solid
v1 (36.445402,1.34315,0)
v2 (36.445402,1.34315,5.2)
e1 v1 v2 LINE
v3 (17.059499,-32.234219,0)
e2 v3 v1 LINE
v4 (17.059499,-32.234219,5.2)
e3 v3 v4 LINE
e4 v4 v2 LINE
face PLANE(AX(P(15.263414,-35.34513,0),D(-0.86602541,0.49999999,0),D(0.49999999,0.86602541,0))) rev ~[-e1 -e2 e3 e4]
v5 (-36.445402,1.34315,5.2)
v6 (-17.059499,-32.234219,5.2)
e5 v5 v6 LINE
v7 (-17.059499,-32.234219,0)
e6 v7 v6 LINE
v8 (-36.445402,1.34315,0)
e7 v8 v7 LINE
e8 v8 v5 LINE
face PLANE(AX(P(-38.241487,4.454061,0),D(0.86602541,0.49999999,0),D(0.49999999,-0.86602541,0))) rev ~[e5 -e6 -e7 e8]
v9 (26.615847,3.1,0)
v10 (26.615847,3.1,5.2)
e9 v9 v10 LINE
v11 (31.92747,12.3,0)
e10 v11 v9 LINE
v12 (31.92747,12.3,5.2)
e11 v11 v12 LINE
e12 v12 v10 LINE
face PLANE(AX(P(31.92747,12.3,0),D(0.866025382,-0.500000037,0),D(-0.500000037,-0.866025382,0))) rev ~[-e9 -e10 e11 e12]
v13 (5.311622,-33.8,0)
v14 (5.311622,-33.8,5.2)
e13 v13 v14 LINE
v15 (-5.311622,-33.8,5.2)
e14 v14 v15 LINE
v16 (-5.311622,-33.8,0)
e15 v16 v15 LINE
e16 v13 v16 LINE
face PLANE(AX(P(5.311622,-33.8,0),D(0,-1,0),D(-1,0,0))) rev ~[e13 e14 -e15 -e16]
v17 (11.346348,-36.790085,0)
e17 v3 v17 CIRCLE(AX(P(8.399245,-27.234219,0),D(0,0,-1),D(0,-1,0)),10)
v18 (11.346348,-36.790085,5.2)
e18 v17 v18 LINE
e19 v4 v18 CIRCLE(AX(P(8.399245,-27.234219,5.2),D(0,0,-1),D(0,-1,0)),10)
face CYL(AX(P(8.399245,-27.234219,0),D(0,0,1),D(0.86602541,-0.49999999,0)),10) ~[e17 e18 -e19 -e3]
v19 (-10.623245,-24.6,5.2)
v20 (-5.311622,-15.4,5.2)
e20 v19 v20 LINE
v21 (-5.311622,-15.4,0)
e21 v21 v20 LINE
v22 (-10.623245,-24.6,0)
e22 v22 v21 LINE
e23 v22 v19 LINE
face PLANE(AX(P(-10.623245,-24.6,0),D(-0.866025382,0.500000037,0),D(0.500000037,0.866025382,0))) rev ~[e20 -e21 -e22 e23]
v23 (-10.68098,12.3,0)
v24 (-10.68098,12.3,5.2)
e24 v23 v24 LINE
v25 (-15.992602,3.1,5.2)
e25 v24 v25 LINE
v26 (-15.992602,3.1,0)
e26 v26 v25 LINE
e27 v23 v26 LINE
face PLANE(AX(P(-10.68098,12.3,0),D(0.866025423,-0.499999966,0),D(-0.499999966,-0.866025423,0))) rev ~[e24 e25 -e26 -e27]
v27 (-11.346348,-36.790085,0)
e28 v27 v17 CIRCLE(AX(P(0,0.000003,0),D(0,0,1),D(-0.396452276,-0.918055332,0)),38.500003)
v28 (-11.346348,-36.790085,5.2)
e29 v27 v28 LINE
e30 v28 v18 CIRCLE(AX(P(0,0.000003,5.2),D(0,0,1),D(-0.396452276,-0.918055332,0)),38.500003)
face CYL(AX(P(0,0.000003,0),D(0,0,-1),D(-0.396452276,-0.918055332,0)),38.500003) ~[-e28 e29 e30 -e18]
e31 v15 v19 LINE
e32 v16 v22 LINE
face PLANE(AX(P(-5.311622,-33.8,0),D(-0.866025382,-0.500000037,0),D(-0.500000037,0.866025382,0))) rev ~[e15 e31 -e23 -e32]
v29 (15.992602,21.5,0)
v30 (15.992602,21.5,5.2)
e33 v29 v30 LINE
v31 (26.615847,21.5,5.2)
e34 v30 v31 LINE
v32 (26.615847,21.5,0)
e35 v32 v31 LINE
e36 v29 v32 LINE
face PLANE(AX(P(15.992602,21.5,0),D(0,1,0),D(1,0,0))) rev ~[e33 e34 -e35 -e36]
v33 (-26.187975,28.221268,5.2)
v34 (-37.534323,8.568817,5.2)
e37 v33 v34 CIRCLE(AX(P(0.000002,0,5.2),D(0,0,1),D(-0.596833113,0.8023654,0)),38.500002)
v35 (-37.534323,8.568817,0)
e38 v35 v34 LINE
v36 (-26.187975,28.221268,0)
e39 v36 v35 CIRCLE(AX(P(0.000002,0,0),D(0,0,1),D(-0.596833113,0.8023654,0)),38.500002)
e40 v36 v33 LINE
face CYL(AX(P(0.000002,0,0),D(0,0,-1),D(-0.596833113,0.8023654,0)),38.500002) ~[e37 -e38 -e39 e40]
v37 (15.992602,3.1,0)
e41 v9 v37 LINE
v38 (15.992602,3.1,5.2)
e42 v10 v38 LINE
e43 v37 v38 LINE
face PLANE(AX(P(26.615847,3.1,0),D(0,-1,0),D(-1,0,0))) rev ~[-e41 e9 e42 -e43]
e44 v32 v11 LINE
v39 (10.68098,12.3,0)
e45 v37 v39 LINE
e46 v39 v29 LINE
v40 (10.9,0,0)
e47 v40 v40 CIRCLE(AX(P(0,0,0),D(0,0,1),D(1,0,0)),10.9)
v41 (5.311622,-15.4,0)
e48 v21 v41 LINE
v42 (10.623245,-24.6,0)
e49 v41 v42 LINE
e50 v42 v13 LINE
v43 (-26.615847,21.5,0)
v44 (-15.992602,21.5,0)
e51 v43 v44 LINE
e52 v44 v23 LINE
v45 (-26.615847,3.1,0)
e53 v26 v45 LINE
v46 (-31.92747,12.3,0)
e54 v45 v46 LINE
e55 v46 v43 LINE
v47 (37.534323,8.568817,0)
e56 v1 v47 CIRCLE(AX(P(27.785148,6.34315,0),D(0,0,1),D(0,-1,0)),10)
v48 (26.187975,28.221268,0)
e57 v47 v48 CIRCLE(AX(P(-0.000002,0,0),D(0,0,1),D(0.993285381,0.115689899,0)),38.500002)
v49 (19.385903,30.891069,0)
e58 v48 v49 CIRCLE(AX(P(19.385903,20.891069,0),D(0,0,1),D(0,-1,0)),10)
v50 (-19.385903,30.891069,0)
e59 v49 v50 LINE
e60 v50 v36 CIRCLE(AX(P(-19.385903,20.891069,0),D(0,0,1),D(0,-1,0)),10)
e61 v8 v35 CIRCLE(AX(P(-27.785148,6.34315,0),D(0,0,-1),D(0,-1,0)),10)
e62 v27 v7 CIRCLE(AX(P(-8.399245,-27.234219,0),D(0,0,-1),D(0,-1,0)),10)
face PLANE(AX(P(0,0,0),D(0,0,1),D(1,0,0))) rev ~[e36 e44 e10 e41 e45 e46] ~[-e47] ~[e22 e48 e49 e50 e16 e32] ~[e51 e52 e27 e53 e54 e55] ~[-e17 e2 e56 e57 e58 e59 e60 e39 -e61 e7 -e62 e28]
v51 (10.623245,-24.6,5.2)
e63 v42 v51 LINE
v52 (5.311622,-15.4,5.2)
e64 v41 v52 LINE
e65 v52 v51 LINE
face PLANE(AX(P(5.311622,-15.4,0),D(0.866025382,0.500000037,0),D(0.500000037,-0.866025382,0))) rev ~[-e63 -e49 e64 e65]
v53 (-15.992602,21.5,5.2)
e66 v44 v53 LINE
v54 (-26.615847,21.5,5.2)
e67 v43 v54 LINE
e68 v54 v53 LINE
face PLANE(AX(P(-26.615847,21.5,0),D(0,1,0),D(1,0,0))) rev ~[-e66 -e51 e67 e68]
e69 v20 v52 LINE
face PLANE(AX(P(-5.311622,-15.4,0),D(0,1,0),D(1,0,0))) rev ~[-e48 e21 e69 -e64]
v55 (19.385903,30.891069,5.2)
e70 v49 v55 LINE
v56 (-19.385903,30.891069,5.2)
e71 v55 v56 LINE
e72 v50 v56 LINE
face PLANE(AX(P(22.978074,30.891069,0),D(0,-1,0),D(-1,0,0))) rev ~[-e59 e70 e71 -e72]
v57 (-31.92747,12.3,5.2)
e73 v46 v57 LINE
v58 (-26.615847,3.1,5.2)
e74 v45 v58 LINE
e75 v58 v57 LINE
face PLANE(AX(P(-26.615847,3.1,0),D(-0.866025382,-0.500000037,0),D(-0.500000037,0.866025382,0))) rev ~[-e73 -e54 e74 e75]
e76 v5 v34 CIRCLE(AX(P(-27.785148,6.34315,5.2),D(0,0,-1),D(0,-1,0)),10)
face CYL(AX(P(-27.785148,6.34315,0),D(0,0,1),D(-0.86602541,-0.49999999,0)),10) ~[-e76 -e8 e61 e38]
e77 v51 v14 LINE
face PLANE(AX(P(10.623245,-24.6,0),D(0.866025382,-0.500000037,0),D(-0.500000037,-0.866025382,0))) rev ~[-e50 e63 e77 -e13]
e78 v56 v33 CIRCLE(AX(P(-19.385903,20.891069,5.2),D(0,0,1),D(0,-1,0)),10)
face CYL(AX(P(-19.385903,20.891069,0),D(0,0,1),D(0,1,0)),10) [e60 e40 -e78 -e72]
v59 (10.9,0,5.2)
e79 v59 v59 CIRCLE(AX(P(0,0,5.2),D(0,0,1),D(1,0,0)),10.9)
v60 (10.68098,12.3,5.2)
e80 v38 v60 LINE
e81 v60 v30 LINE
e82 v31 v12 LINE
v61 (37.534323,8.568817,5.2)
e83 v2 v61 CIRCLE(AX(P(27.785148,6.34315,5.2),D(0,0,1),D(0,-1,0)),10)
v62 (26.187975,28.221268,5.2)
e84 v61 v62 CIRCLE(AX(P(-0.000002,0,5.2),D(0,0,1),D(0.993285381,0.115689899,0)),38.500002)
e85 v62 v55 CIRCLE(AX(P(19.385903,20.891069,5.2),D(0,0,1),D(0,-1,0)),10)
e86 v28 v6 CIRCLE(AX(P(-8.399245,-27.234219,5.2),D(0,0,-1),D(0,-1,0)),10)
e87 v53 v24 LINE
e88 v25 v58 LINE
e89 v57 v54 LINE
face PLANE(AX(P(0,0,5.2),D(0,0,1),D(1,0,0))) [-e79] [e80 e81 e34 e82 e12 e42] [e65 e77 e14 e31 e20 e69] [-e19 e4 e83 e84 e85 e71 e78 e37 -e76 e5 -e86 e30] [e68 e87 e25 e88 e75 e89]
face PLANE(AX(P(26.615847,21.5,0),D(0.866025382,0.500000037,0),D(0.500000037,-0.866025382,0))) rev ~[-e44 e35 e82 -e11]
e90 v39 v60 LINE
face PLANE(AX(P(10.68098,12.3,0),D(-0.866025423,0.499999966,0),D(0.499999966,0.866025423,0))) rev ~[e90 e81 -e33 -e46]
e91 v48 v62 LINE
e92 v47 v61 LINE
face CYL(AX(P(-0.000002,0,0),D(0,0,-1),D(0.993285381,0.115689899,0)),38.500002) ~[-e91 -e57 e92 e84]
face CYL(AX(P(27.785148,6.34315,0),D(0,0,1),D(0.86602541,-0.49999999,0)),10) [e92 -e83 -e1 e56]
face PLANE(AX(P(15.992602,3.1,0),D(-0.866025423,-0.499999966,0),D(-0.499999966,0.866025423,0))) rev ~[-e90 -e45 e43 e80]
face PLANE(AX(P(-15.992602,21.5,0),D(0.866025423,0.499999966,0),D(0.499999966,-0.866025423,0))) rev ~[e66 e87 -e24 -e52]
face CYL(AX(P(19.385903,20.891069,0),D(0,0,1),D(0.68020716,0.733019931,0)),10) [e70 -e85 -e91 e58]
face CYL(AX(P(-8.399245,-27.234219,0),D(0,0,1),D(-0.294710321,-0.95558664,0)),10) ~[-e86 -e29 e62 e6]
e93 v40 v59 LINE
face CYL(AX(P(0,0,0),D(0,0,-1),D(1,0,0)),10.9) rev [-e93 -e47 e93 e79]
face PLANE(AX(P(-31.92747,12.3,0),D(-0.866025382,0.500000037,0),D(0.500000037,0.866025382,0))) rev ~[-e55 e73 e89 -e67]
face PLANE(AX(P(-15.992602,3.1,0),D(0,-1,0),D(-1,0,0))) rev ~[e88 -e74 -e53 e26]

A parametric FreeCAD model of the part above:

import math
import FreeCAD as App
import Part
import Sketcher
from FreeCAD import Vector
Q = App.Units.Quantity


def edges_at(feature, points):
    """Names of the edges that pass closest to the given points."""
    edges = feature.Shape.Edges
    near = lambda p: min(range(len(edges)), key=lambda i: edges[i].distToShape(Part.Vertex(*p))[0])
    return sorted({f"Edge{near(p) + 1}" for p in points})

doc = App.newDocument("Part")
body = doc.addObject("PartDesign::Body", "Body")

sketch1 = body.newObject("Sketcher::SketchObject", "Sketch")
sketch1.AttachmentSupport = (doc.getObject("XY_Plane"), [""])
sketch1.MapMode = "FlatFace"
sketch1.addGeometry(Part.LineSegment(Vector(15, -35, 0), Vector(38, 4, 0)), False)
sketch1.addGeometry(Part.ArcOfCircle(Part.Circle(Vector(0, 0, 0), Vector(0, 0, 1), 39), math.radians(7), math.radians(53)), False)
sketch1.addGeometry(Part.LineSegment(Vector(23, 31, 0), Vector(-23, 31, 0)), False)
sketch1.addGeometry(Part.ArcOfCircle(Part.Circle(Vector(0, 0, 0), Vector(0, 0, 1), 39), math.radians(127), math.radians(173)), False)
sketch1.addGeometry(Part.LineSegment(Vector(-38, 4, 0), Vector(-15, -35, 0)), False)
sketch1.addGeometry(Part.ArcOfCircle(Part.Circle(Vector(0, 0, 0), Vector(0, 0, 1), 39), math.radians(-113), math.radians(-67)), False)
sketch1.addGeometry(Part.LineSegment(Vector(-11, -25, 0), Vector(-5, -15, 0)), False)
sketch1.addGeometry(Part.LineSegment(Vector(-5, -15, 0), Vector(5, -15, 0)), False)
sketch1.addGeometry(Part.LineSegment(Vector(5, -15, 0), Vector(11, -25, 0)), False)
sketch1.addGeometry(Part.LineSegment(Vector(11, -25, 0), Vector(5, -34, 0)), False)
sketch1.addGeometry(Part.LineSegment(Vector(5, -34, 0), Vector(-5, -34, 0)), False)
sketch1.addGeometry(Part.LineSegment(Vector(-5, -34, 0), Vector(-11, -25, 0)), False)
sketch1.addGeometry(Part.LineSegment(Vector(-16, 3, 0), Vector(-27, 3, 0)), False)
sketch1.addGeometry(Part.LineSegment(Vector(-27, 3, 0), Vector(-32, 12, 0)), False)
sketch1.addGeometry(Part.LineSegment(Vector(-32, 12, 0), Vector(-27, 22, 0)), False)
sketch1.addGeometry(Part.LineSegment(Vector(-27, 22, 0), Vector(-16, 22, 0)), False)
sketch1.addGeometry(Part.LineSegment(Vector(-16, 22, 0), Vector(-11, 12, 0)), False)
sketch1.addGeometry(Part.LineSegment(Vector(-11, 12, 0), Vector(-16, 3, 0)), False)
sketch1.addGeometry(Part.Circle(Vector(0, 0, 0), Vector(0, 0, 1), 11), False)
sketch1.addGeometry(Part.LineSegment(Vector(11, 12, 0), Vector(16, 22, 0)), False)
sketch1.addGeometry(Part.LineSegment(Vector(16, 22, 0), Vector(27, 22, 0)), False)
sketch1.addGeometry(Part.LineSegment(Vector(27, 22, 0), Vector(32, 12, 0)), False)
sketch1.addGeometry(Part.LineSegment(Vector(32, 12, 0), Vector(27, 3, 0)), False)
sketch1.addGeometry(Part.LineSegment(Vector(27, 3, 0), Vector(16, 3, 0)), False)
sketch1.addGeometry(Part.LineSegment(Vector(16, 3, 0), Vector(11, 12, 0)), False)
sketch1.addConstraint(Sketcher.Constraint("Coincident", 0, 2, 1, 1))
sketch1.addConstraint(Sketcher.Constraint("Coincident", 1, 2, 2, 1))
sketch1.addConstraint(Sketcher.Constraint("Coincident", 2, 2, 3, 1))
sketch1.addConstraint(Sketcher.Constraint("Coincident", 3, 2, 4, 1))
sketch1.addConstraint(Sketcher.Constraint("Coincident", 4, 2, 5, 1))
sketch1.addConstraint(Sketcher.Constraint("Coincident", 5, 2, 0, 1))
sketch1.addConstraint(Sketcher.Constraint("Coincident", 6, 2, 7, 1))
sketch1.addConstraint(Sketcher.Constraint("Coincident", 7, 2, 8, 1))
sketch1.addConstraint(Sketcher.Constraint("Coincident", 8, 2, 9, 1))
sketch1.addConstraint(Sketcher.Constraint("Coincident", 9, 2, 10, 1))
sketch1.addConstraint(Sketcher.Constraint("Coincident", 10, 2, 11, 1))
sketch1.addConstraint(Sketcher.Constraint("Coincident", 11, 2, 6, 1))
sketch1.addConstraint(Sketcher.Constraint("Coincident", 12, 2, 13, 1))
sketch1.addConstraint(Sketcher.Constraint("Coincident", 13, 2, 14, 1))
sketch1.addConstraint(Sketcher.Constraint("Coincident", 14, 2, 15, 1))
sketch1.addConstraint(Sketcher.Constraint("Coincident", 15, 2, 16, 1))
sketch1.addConstraint(Sketcher.Constraint("Coincident", 16, 2, 17, 1))
sketch1.addConstraint(Sketcher.Constraint("Coincident", 17, 2, 12, 1))
sketch1.addConstraint(Sketcher.Constraint("Coincident", 19, 2, 20, 1))
sketch1.addConstraint(Sketcher.Constraint("Coincident", 20, 2, 21, 1))
sketch1.addConstraint(Sketcher.Constraint("Coincident", 21, 2, 22, 1))
sketch1.addConstraint(Sketcher.Constraint("Coincident", 22, 2, 23, 1))
sketch1.addConstraint(Sketcher.Constraint("Coincident", 23, 2, 24, 1))
sketch1.addConstraint(Sketcher.Constraint("Coincident", 24, 2, 19, 1))
sketch1.addConstraint(Sketcher.Constraint("Horizontal", 2))
sketch1.addConstraint(Sketcher.Constraint("Horizontal", 7))
sketch1.addConstraint(Sketcher.Constraint("Horizontal", 10))
sketch1.addConstraint(Sketcher.Constraint("Horizontal", 12))
sketch1.addConstraint(Sketcher.Constraint("Horizontal", 15))
sketch1.addConstraint(Sketcher.Constraint("Horizontal", 20))
sketch1.addConstraint(Sketcher.Constraint("Horizontal", 23))
sketch1.addConstraint(Sketcher.Constraint("Coincident", 1, 3, -1, 1))
sketch1.addConstraint(Sketcher.Constraint("Coincident", 3, 3, -1, 1))
sketch1.addConstraint(Sketcher.Constraint("Coincident", 5, 3, -1, 1))
sketch1.addConstraint(Sketcher.Constraint("Coincident", 18, 3, -1, 1))
sketch1.addConstraint(Sketcher.Constraint("Equal", 1, 3))
sketch1.addConstraint(Sketcher.Constraint("Equal", 3, 5))
sketch1.addConstraint(Sketcher.Constraint("Symmetric", 8, 2, 11, 2, -2))
sketch1.addConstraint(Sketcher.Constraint("Symmetric", 15, 2, 19, 2, -2))
sketch1.addConstraint(Sketcher.Constraint("Symmetric", 13, 2, 21, 2, -2))
sketch1.addConstraint(Sketcher.Constraint("Symmetric", 12, 2, 22, 2, -2))
sketch1.addConstraint(Sketcher.Constraint("Symmetric", 16, 2, 24, 2, -2))
sketch1.addConstraint(Sketcher.Constraint("Parallel", 0, 6))
sketch1.addConstraint(Sketcher.Constraint("Parallel", 4, 8))
sketch1.addConstraint(Sketcher.Constraint("Parallel", 6, 9))
sketch1.addConstraint(Sketcher.Constraint("Parallel", 8, 11))
sketch1.addConstraint(Sketcher.Constraint("Parallel", 11, 13))
sketch1.addConstraint(Sketcher.Constraint("Parallel", 9, 14))
sketch1.addConstraint(Sketcher.Constraint("Parallel", 13, 16))
sketch1.addConstraint(Sketcher.Constraint("Parallel", 14, 17))
sketch1.addConstraint(Sketcher.Constraint("Parallel", 17, 19))
sketch1.addConstraint(Sketcher.Constraint("Parallel", 16, 21))
sketch1.addConstraint(Sketcher.Constraint("Parallel", 21, 24))
sketch1.addConstraint(Sketcher.Constraint("Horizontal", 0, 2, 3, 2))
sketch1.addConstraint(Sketcher.Constraint("Horizontal", 13, 2, 16, 2))
sketch1.addConstraint(Sketcher.Constraint("Vertical", 7, 2, 9, 2))
sketch1.addConstraint(Sketcher.Constraint("Vertical", 12, 2, 14, 2))
sketch1.addConstraint(Sketcher.Constraint("Equal", 10, 12))
sketch1.addConstraint(Sketcher.Constraint("Equal", 11, 13))
sketch1.addConstraint(Sketcher.Constraint("Diameter", 18, Q("21.8 mm")))
sketch1.addConstraint(Sketcher.Constraint("Radius", 1, Q("38.500002 mm")))
sketch1.addConstraint(Sketcher.Constraint("Angle", 0, Q("60.000001 deg")))
sketch1.addConstraint(Sketcher.Constraint("DistanceY", 6, 2, -1, 1, Q("15.4 mm")))
sketch1.addConstraint(Sketcher.Constraint("DistanceY", 8, 2, -1, 1, Q("24.6 mm")))
sketch1.addConstraint(Sketcher.Constraint("DistanceY", -1, 1, 12, 2, Q("3.1 mm")))
sketch1.addConstraint(Sketcher.Constraint("DistanceX", 17, 2, 1, 3, Q("15.9926 mm")))
sketch1.addConstraint(Sketcher.Constraint("DistanceX", 2, 2, 2, 1, Q("45.956148 mm")))
sketch1.addConstraint(Sketcher.Constraint("DistanceX", 7, 1, 7, 2, Q("10.623244 mm")))
sketch1.addConstraint(Sketcher.Constraint("DistanceY", -1, 1, 0, 2, Q("4.454061 mm")))
pad1 = body.newObject("PartDesign::Pad", "Pad")
pad1.Profile = sketch1
pad1.Length = 5.2
doc.recompute()

fillet = body.newObject("PartDesign::Fillet", "Fillet")
fillet.Base = (pad1, edges_at(pad1, [
    (-38.241, 4.454, 2.6),
    (-22.978, 30.891, 2.6),
    (22.978, 30.891, 2.6),
    (38.241, 4.454, 2.6),
    (15.263, -35.345, 2.6),
    (-15.263, -35.345, 2.6),
]))
fillet.Radius = 10

doc.recompute()
